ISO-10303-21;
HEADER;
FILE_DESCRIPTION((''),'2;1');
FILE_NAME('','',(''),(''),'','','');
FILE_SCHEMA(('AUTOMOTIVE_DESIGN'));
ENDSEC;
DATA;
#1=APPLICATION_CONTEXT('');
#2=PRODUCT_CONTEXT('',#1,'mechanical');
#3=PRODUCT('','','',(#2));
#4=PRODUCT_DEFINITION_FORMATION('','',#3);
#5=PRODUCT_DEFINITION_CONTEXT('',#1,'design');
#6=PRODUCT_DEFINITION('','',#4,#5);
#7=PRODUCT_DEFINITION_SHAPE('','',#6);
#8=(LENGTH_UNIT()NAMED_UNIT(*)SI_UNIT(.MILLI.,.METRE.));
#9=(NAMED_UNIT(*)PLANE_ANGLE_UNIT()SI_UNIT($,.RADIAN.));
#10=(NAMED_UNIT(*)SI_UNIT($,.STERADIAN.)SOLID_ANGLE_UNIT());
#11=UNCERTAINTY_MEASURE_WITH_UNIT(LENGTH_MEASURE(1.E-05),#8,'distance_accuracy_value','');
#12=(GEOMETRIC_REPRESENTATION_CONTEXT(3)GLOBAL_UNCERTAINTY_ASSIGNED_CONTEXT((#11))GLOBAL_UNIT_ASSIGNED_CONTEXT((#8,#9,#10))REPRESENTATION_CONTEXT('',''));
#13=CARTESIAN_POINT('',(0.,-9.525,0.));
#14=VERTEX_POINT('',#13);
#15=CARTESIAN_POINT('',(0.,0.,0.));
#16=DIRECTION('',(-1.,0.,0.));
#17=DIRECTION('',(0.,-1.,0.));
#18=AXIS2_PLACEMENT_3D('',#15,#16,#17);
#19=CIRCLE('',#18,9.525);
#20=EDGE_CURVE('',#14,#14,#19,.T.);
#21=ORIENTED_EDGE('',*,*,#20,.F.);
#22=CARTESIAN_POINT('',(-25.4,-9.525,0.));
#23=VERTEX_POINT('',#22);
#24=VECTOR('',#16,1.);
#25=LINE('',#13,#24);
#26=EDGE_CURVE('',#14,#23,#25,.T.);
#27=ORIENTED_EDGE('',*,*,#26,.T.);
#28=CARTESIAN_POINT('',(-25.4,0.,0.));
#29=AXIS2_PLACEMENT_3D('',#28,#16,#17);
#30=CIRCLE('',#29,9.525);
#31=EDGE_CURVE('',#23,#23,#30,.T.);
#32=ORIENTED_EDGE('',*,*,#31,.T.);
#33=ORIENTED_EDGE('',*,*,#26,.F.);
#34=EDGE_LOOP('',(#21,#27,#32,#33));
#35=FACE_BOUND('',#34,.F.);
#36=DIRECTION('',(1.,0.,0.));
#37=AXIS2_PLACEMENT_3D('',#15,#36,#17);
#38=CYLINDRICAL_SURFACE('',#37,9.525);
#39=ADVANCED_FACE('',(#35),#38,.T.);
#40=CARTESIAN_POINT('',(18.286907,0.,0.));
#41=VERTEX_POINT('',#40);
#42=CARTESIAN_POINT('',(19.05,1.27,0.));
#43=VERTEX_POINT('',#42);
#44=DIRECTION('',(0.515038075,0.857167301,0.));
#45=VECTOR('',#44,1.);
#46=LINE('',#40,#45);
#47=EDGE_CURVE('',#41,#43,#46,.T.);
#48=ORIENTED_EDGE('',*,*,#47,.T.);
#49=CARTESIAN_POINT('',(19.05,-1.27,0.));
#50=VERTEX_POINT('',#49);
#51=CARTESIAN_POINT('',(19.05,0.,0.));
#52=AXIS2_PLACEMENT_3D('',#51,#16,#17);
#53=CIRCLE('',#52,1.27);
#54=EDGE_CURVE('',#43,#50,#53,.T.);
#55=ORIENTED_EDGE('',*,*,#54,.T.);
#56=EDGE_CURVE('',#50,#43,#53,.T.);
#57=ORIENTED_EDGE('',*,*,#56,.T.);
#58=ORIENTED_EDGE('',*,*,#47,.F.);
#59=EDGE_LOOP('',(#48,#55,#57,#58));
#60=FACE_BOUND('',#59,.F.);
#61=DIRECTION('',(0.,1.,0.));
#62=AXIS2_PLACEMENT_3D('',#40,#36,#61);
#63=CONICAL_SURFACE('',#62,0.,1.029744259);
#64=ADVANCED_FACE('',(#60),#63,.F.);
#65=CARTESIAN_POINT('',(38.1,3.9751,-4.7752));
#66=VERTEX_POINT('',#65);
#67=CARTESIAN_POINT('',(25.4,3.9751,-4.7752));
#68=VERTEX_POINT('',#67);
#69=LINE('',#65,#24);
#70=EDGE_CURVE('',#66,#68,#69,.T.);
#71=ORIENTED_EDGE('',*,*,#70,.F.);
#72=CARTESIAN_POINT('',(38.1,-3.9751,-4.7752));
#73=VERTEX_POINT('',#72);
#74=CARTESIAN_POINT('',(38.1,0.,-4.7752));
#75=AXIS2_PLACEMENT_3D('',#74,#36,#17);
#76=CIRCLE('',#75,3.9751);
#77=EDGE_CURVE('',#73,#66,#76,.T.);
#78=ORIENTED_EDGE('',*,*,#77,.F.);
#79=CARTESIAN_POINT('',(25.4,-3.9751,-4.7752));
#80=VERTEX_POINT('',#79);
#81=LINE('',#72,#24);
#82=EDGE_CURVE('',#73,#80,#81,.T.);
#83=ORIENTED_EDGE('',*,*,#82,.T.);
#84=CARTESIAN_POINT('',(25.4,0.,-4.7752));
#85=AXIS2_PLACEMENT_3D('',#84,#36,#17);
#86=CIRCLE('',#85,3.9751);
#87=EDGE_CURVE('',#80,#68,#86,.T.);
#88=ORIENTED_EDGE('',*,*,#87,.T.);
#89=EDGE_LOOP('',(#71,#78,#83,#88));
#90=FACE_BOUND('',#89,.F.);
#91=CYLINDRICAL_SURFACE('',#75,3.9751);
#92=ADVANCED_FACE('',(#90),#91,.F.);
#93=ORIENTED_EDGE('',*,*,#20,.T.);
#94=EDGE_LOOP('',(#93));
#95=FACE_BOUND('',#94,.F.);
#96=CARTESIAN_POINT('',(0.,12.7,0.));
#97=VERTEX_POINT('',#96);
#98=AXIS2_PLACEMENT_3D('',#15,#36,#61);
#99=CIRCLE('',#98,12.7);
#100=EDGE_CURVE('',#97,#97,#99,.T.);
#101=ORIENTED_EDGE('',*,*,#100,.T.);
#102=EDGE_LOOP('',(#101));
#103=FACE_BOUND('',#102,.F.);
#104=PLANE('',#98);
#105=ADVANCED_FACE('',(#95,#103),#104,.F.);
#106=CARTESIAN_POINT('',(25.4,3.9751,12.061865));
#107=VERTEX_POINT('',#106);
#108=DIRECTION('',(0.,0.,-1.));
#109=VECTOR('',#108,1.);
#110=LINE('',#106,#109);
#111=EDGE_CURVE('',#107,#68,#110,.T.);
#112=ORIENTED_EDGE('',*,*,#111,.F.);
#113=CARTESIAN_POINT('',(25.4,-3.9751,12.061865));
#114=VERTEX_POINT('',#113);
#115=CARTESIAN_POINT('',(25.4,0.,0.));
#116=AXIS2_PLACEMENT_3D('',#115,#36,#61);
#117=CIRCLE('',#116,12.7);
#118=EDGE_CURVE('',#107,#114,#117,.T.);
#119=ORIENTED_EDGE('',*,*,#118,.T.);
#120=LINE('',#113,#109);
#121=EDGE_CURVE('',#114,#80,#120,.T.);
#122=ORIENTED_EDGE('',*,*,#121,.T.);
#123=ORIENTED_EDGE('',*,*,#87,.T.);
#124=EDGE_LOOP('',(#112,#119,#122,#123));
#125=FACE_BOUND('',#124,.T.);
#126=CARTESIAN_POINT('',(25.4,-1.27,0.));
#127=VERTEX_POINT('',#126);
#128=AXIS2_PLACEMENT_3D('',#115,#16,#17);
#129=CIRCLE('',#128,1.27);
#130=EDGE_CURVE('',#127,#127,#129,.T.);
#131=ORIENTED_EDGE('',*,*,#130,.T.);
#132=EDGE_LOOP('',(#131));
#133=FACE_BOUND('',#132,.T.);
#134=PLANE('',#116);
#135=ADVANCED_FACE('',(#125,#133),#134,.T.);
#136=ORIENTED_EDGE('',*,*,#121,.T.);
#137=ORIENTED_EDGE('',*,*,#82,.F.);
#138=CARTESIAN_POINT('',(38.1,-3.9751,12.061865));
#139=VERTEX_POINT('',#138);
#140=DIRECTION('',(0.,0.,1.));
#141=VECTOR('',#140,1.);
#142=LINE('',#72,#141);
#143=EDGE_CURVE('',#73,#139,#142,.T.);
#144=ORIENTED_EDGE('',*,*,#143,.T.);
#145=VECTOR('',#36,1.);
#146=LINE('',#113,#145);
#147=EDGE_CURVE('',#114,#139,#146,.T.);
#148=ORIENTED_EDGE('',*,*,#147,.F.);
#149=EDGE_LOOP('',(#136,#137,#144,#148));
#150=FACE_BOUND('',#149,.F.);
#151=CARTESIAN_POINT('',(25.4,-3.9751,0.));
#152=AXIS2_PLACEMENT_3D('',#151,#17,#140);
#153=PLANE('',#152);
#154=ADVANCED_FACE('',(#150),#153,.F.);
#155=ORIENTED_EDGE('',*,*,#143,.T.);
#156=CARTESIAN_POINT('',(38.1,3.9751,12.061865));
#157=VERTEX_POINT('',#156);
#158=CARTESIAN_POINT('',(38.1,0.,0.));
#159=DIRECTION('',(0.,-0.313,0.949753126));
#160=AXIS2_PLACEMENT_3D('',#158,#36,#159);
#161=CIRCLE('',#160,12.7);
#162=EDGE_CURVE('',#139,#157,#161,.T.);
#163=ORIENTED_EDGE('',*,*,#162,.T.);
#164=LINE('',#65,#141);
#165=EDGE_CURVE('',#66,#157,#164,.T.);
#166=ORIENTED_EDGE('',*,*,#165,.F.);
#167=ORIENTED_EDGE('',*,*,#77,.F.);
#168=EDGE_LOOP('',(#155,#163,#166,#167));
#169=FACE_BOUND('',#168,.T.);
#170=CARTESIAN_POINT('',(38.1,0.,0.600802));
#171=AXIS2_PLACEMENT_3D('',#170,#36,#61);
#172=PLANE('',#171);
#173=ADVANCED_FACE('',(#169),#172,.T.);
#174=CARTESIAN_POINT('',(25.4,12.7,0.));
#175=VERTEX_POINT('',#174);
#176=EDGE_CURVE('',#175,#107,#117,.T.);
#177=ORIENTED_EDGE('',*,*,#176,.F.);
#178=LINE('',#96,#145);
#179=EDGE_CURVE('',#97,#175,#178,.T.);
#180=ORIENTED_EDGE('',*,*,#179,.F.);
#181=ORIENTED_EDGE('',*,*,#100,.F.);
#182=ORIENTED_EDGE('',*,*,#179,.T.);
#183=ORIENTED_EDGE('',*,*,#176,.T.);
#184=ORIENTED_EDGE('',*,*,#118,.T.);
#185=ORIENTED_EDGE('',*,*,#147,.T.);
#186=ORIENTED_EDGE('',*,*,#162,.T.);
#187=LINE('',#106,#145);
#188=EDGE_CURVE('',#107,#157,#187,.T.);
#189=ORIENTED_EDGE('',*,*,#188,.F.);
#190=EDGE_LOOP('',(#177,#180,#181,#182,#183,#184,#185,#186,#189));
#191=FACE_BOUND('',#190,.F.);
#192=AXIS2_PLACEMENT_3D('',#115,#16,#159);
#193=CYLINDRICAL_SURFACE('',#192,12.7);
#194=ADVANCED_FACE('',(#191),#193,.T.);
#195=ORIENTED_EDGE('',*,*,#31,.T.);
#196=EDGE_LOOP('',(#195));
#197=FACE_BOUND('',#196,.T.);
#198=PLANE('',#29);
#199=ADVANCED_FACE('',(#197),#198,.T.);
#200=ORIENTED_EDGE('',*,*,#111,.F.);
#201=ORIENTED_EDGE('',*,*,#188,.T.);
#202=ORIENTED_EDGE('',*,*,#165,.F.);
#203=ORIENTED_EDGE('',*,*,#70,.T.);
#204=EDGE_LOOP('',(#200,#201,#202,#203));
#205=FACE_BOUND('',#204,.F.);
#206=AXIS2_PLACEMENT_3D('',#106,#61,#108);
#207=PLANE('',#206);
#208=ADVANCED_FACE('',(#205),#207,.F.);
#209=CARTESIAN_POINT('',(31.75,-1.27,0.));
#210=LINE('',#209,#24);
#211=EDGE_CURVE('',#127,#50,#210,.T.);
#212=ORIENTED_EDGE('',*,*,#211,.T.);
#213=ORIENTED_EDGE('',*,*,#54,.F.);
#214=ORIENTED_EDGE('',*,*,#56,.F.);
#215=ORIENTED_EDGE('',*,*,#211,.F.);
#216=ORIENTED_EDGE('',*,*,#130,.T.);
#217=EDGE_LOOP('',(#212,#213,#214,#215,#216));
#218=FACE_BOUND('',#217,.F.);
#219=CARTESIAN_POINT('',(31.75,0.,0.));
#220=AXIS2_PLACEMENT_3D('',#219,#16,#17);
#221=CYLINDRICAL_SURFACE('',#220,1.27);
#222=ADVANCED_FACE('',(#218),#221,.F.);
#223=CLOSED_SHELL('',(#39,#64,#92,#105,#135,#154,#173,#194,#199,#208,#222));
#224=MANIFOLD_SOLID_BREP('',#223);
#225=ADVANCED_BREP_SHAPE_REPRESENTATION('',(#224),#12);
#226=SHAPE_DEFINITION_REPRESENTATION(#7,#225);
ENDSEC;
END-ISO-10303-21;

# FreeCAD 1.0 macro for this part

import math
import FreeCAD as App
import Part
import Sketcher

V = App.Vector
Q = App.Units.Quantity

doc = App.newDocument("Part")
body = doc.addObject("PartDesign::Body", "Body")

sketch1 = body.newObject("Sketcher::SketchObject", "Sketch")
sketch1.AttachmentSupport = (doc.getObject("YZ_Plane"), [""])
sketch1.MapMode = "FlatFace"
sketch1.addGeometry(Part.Circle(V(0, 0, 0), V(0, 0, 1), 13), False)
sketch1.addConstraint([
    Sketcher.Constraint("Coincident", 0, 3, -1, 1),
    Sketcher.Constraint("Diameter", 0, Q("1 in")),
])
pad1 = body.newObject("PartDesign::Pad", "Pad")
pad1.Profile = sketch1
pad1.Length = Q("1 in")

sketch2 = body.newObject("Sketcher::SketchObject", "Sketch001")
sketch2.AttachmentSupport = (doc.getObject("YZ_Plane"), [""])
sketch2.MapMode = "FlatFace"
sketch2.AttachmentOffset = App.Placement(V(0, 0, 1 * 25.4), App.Rotation())
sketch2.addGeometry([
    Part.ArcOfCircle(Part.Circle(V(0, 0, 0), V(0, 0, 1), 4), math.radians(180), math.radians(360)),
    Part.LineSegment(V(-4, 0, 0), V(-4, 12.1, 0)),
    Part.ArcOfCircle(Part.Circle(V(0, 0, 0), V(0, 0, 1), 12.7), math.radians(108), math.radians(432)),
    Part.LineSegment(V(4, 12.1, 0), V(4, 0, 0)),
], False)
sketch2.addConstraint([
    Sketcher.Constraint("Tangent", 0, 1, 1, 1),
    Sketcher.Constraint("Coincident", 1, 2, 2, 1),
    Sketcher.Constraint("Coincident", 2, 2, 3, 1),
    Sketcher.Constraint("Tangent", 3, 2, 0, 2),
    Sketcher.Constraint("Vertical", 1),
    Sketcher.Constraint("Vertical", 3),
    Sketcher.Constraint("Coincident", 0, 3, -1, 1),
    Sketcher.Constraint("Coincident", 2, 3, -1, 1),
    Sketcher.Constraint("Radius", 2, Q("0.5 in")),
    Sketcher.Constraint("Radius", 0, Q("0.1565 in")),
])
pad2 = body.newObject("PartDesign::Pad", "Pad001")
pad2.Profile = sketch2
pad2.Length = Q("0.5 in")

sketch3 = body.newObject("Sketcher::SketchObject", "Sketch002")
sketch3.AttachmentSupport = (doc.getObject("YZ_Plane"), [""])
sketch3.MapMode = "FlatFace"
sketch3.addGeometry(Part.Circle(V(0, 0, 0), V(0, 0, 1), 10), False)
sketch3.addConstraint([
    Sketcher.Constraint("Coincident", 0, 3, -1, 1),
    Sketcher.Constraint("Diameter", 0, Q("0.75 in")),
])
pad3 = body.newObject("PartDesign::Pad", "Pad002")
pad3.Profile = sketch3
pad3.Length = Q("1 in")
pad3.Reversed = True

sketch4 = body.newObject("Sketcher::SketchObject", "Sketch003")
sketch4.AttachmentSupport = (doc.getObject("YZ_Plane"), [""])
sketch4.MapMode = "FlatFace"
sketch4.AttachmentOffset = App.Placement(V(0, 0, 1 * 25.4), App.Rotation())
sketch4.addGeometry(Part.Circle(V(0, 0, 0), V(0, 0, 1), 1.3), False)
sketch4.addConstraint([
    Sketcher.Constraint("Coincident", 0, 3, -1, 1),
    Sketcher.Constraint("Diameter", 0, Q("0.1 in")),
])
doc.recompute()
hole = body.newObject("PartDesign::Hole", "Hole")
hole.Profile = sketch4
hole.ThreadType = "None"
hole.Diameter = Q("0.1 in")
hole.DepthType = "Dimension"
hole.Depth = Q("0.25 in")
hole.DrillPoint = "Angled"
hole.DrillPointAngle = 118
body2 = doc.addObject("PartDesign::Body", "Body001")

sketch5 = body2.newObject("Sketcher::SketchObject", "Sketch004")
sketch5.AttachmentSupport = (doc.getObject("YZ_Plane001"), [""])
sketch5.MapMode = "FlatFace"
sketch5.AttachmentOffset = App.Placement(V(0, 0, 1.5 * 25.4), App.Rotation())
sketch5.addGeometry([
    Part.LineSegment(V(-4, 0, 0), V(-4, -4.8, 0)),
    Part.ArcOfCircle(Part.Circle(V(0, -4.8, 0), V(0, 0, 1), 4), math.radians(180), math.radians(360)),
    Part.LineSegment(V(4, -4.8, 0), V(4, 0, 0)),
    Part.ArcOfCircle(Part.Circle(V(0, 0, 0), V(0, 0, 1), 4), math.radians(180), math.radians(360)),
], False)
sketch5.addConstraint([
    Sketcher.Constraint("Tangent", 0, 2, 1, 1),
    Sketcher.Constraint("Tangent", 1, 2, 2, 1),
    Sketcher.Constraint("Tangent", 2, 2, 3, 2),
    Sketcher.Constraint("Tangent", 3, 1, 0, 1),
    Sketcher.Constraint("Vertical", 0),
    Sketcher.Constraint("Vertical", 2),
    Sketcher.Constraint("Coincident", 3, 3, -1, 1),
    Sketcher.Constraint("Radius", 1, Q("0.1565 in")),
    Sketcher.Constraint("DistanceY", 0, 2, 0, 1, Q("0.188 in")),
])
pad4 = body2.newObject("PartDesign::Pad", "Pad003")
pad4.Profile = sketch5
pad4.Length = Q("0.5 in")
pad4.Reversed = True
doc.recompute()

boolean = body.newObject("PartDesign::Boolean", "Boolean")
boolean.Type = "Cut"
boolean.addObjects([body2])

doc.recompute()
